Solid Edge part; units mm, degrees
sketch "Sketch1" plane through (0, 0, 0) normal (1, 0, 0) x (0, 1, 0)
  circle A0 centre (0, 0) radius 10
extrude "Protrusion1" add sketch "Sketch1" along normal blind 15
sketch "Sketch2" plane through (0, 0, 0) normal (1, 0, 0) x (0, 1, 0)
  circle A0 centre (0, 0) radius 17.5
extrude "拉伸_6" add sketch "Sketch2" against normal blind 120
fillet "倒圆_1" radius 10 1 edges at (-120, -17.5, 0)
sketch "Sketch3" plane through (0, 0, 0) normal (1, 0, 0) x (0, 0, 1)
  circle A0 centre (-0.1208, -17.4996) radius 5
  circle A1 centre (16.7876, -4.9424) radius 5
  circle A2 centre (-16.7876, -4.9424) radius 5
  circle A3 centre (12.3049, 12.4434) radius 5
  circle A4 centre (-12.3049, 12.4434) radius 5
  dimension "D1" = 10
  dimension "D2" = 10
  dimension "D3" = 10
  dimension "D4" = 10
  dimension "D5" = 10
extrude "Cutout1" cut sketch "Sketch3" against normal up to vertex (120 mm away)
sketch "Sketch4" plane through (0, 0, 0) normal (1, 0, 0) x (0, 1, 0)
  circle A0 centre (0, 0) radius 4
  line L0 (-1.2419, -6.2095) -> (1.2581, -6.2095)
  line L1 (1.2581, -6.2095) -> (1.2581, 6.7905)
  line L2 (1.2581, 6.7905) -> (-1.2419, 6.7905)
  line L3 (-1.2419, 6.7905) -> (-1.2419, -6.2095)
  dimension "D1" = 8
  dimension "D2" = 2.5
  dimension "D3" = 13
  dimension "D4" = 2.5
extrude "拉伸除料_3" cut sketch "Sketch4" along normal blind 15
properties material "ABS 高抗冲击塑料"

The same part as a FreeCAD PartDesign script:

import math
import FreeCAD as App
import Part
import Sketcher

V = App.Vector


def edges_at(feature, points):
    """Names of the edges that pass closest to the given points."""
    edges = feature.Shape.Edges
    near = lambda p: min(range(len(edges)), key=lambda i: edges[i].distToShape(Part.Vertex(*p))[0])
    return sorted({f"Edge{near(p) + 1}" for p in points})

doc = App.newDocument("Part")
body = doc.addObject("PartDesign::Body", "Body")

# Sketch on YZ plane
sketch1 = body.newObject("Sketcher::SketchObject", "Sketch")
sketch1.AttachmentSupport = (doc.getObject("YZ_Plane"), [""])
sketch1.MapMode = "FlatFace"
sketch1.addGeometry(Part.Circle(V(0, 0, 0), V(0, 0, 1), 10), False)
sketch1.addConstraint([
    Sketcher.Constraint("Coincident", 0, 3, -1, 1),
    Sketcher.Constraint("Diameter", 0, 20.0),
])
pad1 = body.newObject("PartDesign::Pad", "Pad")
pad1.Profile = sketch1
pad1.Length = 15

# Sketch on YZ plane
sketch2 = body.newObject("Sketcher::SketchObject", "Sketch001")
sketch2.AttachmentSupport = (doc.getObject("YZ_Plane"), [""])
sketch2.MapMode = "FlatFace"
sketch2.addGeometry(Part.Circle(V(0, 0, 0), V(0, 0, 1), 18), False)
sketch2.addConstraint([
    Sketcher.Constraint("Coincident", 0, 3, -1, 1),
    Sketcher.Constraint("Diameter", 0, 35.0),
])
pad2 = body.newObject("PartDesign::Pad", "Pad001")
pad2.Profile = sketch2
pad2.Length = 120
pad2.Reversed = True
doc.recompute()

fillet = body.newObject("PartDesign::Fillet", "Fillet")
fillet.Base = (pad2, edges_at(pad2, [(-120, -17.5, 0)]))
fillet.Radius = 10

# Sketch on YZ plane
sketch3 = body.newObject("Sketcher::SketchObject", "Sketch002")
sketch3.AttachmentSupport = (doc.getObject("YZ_Plane"), [""])
sketch3.MapMode = "FlatFace"
sketch3.addGeometry([
    Part.Circle(V(17, 0, 0), V(0, 0, 1), 5),  # 0
    Part.Circle(V(5, 17, 0), V(0, 0, 1), 5),  # 1
    Part.Circle(V(5, -17, 0), V(0, 0, 1), 5),  # 2
    Part.Circle(V(-12, 12, 0), V(0, 0, 1), 5),  # 3
    Part.Circle(V(-12, -12, 0), V(0, 0, 1), 5),  # 4
], False)
sketch3.addConstraint([
    Sketcher.Constraint("Equal", 0, 1),
    Sketcher.Constraint("Equal", 1, 2),
    Sketcher.Constraint("Equal", 2, 3),
    Sketcher.Constraint("Equal", 3, 4),
    Sketcher.Constraint("Symmetric", 1, 3, 2, 3, -1),
    Sketcher.Constraint("Symmetric", 3, 3, 4, 3, -1),
    Sketcher.Constraint("Diameter", 0, 10.0),
    Sketcher.Constraint("DistanceY", -1, 1, 3, 3, 12.305),
    Sketcher.Constraint("DistanceX", 3, 3, 0, 3, 29.943),
    Sketcher.Constraint("DistanceY", 4, 3, 0, 3, 12.184),
    Sketcher.Constraint("DistanceX", -1, 1, 0, 3, 17.4996),
    Sketcher.Constraint("DistanceX", -1, 1, 1, 3, 4.9424),
    Sketcher.Constraint("DistanceY", -1, 1, 1, 3, 16.7876),
])
pocket1 = body.newObject("PartDesign::Pocket", "Pocket")
pocket1.Profile = sketch3
pocket1.Length = 120

# Sketch on YZ plane
sketch4 = body.newObject("Sketcher::SketchObject", "Sketch003")
sketch4.AttachmentSupport = (doc.getObject("YZ_Plane"), [""])
sketch4.MapMode = "FlatFace"
sketch4.addGeometry([
    Part.ArcOfCircle(Part.Circle(V(0, 0, 0), V(0, 0, 1), 4), math.radians(-72), math.radians(72)),  # 0
    Part.LineSegment(V(1.3, 3.8, 0), V(1.3, 6.8, 0)),  # 1
    Part.LineSegment(V(1.3, 6.8, 0), V(-1.2, 6.8, 0)),  # 2
    Part.LineSegment(V(-1.2, 6.8, 0), V(-1.2, 3.8, 0)),  # 3
    Part.ArcOfCircle(Part.Circle(V(0, 0, 0), V(0, 0, 1), 4), math.radians(108), math.radians(252)),  # 4
    Part.LineSegment(V(-1.2, -3.8, 0), V(-1.2, -6.2, 0)),  # 5
    Part.LineSegment(V(-1.2, -6.2, 0), V(1.3, -6.2, 0)),  # 6
    Part.LineSegment(V(1.3, -6.2, 0), V(1.3, -3.8, 0)),  # 7
], False)
sketch4.addConstraint([
    Sketcher.Constraint("Coincident", 0, 2, 1, 1),
    Sketcher.Constraint("Coincident", 1, 2, 2, 1),
    Sketcher.Constraint("Coincident", 2, 2, 3, 1),
    Sketcher.Constraint("Coincident", 3, 2, 4, 1),
    Sketcher.Constraint("Coincident", 4, 2, 5, 1),
    Sketcher.Constraint("Coincident", 5, 2, 6, 1),
    Sketcher.Constraint("Coincident", 6, 2, 7, 1),
    Sketcher.Constraint("Coincident", 7, 2, 0, 1),
    Sketcher.Constraint("Vertical", 1),
    Sketcher.Constraint("Horizontal", 2),
    Sketcher.Constraint("Vertical", 3),
    Sketcher.Constraint("Vertical", 5),
    Sketcher.Constraint("Horizontal", 6),
    Sketcher.Constraint("Vertical", 7),
    Sketcher.Constraint("Coincident", 0, 3, -1, 1),
    Sketcher.Constraint("Coincident", 4, 3, -1, 1),
    Sketcher.Constraint("Equal", 0, 4),
    Sketcher.Constraint("Vertical", 3, 2, 4, 2),
    Sketcher.Constraint("Vertical", 1, 2, 6, 2),
    Sketcher.Constraint("Radius", 0, 4.0),
    Sketcher.Constraint("DistanceX", 2, 2, 2, 1, 2.5),
    Sketcher.Constraint("DistanceY", 1, 1, 1, 2, 2.9935),
    Sketcher.Constraint("DistanceY", 3, 2, 3, 1, 2.9882),
    Sketcher.Constraint("DistanceY", 5, 2, 5, 1, 2.4072),
])
pocket2 = body.newObject("PartDesign::Pocket", "Pocket001")
pocket2.Profile = sketch4
pocket2.Length = 15
pocket2.Reversed = True

doc.recompute()
